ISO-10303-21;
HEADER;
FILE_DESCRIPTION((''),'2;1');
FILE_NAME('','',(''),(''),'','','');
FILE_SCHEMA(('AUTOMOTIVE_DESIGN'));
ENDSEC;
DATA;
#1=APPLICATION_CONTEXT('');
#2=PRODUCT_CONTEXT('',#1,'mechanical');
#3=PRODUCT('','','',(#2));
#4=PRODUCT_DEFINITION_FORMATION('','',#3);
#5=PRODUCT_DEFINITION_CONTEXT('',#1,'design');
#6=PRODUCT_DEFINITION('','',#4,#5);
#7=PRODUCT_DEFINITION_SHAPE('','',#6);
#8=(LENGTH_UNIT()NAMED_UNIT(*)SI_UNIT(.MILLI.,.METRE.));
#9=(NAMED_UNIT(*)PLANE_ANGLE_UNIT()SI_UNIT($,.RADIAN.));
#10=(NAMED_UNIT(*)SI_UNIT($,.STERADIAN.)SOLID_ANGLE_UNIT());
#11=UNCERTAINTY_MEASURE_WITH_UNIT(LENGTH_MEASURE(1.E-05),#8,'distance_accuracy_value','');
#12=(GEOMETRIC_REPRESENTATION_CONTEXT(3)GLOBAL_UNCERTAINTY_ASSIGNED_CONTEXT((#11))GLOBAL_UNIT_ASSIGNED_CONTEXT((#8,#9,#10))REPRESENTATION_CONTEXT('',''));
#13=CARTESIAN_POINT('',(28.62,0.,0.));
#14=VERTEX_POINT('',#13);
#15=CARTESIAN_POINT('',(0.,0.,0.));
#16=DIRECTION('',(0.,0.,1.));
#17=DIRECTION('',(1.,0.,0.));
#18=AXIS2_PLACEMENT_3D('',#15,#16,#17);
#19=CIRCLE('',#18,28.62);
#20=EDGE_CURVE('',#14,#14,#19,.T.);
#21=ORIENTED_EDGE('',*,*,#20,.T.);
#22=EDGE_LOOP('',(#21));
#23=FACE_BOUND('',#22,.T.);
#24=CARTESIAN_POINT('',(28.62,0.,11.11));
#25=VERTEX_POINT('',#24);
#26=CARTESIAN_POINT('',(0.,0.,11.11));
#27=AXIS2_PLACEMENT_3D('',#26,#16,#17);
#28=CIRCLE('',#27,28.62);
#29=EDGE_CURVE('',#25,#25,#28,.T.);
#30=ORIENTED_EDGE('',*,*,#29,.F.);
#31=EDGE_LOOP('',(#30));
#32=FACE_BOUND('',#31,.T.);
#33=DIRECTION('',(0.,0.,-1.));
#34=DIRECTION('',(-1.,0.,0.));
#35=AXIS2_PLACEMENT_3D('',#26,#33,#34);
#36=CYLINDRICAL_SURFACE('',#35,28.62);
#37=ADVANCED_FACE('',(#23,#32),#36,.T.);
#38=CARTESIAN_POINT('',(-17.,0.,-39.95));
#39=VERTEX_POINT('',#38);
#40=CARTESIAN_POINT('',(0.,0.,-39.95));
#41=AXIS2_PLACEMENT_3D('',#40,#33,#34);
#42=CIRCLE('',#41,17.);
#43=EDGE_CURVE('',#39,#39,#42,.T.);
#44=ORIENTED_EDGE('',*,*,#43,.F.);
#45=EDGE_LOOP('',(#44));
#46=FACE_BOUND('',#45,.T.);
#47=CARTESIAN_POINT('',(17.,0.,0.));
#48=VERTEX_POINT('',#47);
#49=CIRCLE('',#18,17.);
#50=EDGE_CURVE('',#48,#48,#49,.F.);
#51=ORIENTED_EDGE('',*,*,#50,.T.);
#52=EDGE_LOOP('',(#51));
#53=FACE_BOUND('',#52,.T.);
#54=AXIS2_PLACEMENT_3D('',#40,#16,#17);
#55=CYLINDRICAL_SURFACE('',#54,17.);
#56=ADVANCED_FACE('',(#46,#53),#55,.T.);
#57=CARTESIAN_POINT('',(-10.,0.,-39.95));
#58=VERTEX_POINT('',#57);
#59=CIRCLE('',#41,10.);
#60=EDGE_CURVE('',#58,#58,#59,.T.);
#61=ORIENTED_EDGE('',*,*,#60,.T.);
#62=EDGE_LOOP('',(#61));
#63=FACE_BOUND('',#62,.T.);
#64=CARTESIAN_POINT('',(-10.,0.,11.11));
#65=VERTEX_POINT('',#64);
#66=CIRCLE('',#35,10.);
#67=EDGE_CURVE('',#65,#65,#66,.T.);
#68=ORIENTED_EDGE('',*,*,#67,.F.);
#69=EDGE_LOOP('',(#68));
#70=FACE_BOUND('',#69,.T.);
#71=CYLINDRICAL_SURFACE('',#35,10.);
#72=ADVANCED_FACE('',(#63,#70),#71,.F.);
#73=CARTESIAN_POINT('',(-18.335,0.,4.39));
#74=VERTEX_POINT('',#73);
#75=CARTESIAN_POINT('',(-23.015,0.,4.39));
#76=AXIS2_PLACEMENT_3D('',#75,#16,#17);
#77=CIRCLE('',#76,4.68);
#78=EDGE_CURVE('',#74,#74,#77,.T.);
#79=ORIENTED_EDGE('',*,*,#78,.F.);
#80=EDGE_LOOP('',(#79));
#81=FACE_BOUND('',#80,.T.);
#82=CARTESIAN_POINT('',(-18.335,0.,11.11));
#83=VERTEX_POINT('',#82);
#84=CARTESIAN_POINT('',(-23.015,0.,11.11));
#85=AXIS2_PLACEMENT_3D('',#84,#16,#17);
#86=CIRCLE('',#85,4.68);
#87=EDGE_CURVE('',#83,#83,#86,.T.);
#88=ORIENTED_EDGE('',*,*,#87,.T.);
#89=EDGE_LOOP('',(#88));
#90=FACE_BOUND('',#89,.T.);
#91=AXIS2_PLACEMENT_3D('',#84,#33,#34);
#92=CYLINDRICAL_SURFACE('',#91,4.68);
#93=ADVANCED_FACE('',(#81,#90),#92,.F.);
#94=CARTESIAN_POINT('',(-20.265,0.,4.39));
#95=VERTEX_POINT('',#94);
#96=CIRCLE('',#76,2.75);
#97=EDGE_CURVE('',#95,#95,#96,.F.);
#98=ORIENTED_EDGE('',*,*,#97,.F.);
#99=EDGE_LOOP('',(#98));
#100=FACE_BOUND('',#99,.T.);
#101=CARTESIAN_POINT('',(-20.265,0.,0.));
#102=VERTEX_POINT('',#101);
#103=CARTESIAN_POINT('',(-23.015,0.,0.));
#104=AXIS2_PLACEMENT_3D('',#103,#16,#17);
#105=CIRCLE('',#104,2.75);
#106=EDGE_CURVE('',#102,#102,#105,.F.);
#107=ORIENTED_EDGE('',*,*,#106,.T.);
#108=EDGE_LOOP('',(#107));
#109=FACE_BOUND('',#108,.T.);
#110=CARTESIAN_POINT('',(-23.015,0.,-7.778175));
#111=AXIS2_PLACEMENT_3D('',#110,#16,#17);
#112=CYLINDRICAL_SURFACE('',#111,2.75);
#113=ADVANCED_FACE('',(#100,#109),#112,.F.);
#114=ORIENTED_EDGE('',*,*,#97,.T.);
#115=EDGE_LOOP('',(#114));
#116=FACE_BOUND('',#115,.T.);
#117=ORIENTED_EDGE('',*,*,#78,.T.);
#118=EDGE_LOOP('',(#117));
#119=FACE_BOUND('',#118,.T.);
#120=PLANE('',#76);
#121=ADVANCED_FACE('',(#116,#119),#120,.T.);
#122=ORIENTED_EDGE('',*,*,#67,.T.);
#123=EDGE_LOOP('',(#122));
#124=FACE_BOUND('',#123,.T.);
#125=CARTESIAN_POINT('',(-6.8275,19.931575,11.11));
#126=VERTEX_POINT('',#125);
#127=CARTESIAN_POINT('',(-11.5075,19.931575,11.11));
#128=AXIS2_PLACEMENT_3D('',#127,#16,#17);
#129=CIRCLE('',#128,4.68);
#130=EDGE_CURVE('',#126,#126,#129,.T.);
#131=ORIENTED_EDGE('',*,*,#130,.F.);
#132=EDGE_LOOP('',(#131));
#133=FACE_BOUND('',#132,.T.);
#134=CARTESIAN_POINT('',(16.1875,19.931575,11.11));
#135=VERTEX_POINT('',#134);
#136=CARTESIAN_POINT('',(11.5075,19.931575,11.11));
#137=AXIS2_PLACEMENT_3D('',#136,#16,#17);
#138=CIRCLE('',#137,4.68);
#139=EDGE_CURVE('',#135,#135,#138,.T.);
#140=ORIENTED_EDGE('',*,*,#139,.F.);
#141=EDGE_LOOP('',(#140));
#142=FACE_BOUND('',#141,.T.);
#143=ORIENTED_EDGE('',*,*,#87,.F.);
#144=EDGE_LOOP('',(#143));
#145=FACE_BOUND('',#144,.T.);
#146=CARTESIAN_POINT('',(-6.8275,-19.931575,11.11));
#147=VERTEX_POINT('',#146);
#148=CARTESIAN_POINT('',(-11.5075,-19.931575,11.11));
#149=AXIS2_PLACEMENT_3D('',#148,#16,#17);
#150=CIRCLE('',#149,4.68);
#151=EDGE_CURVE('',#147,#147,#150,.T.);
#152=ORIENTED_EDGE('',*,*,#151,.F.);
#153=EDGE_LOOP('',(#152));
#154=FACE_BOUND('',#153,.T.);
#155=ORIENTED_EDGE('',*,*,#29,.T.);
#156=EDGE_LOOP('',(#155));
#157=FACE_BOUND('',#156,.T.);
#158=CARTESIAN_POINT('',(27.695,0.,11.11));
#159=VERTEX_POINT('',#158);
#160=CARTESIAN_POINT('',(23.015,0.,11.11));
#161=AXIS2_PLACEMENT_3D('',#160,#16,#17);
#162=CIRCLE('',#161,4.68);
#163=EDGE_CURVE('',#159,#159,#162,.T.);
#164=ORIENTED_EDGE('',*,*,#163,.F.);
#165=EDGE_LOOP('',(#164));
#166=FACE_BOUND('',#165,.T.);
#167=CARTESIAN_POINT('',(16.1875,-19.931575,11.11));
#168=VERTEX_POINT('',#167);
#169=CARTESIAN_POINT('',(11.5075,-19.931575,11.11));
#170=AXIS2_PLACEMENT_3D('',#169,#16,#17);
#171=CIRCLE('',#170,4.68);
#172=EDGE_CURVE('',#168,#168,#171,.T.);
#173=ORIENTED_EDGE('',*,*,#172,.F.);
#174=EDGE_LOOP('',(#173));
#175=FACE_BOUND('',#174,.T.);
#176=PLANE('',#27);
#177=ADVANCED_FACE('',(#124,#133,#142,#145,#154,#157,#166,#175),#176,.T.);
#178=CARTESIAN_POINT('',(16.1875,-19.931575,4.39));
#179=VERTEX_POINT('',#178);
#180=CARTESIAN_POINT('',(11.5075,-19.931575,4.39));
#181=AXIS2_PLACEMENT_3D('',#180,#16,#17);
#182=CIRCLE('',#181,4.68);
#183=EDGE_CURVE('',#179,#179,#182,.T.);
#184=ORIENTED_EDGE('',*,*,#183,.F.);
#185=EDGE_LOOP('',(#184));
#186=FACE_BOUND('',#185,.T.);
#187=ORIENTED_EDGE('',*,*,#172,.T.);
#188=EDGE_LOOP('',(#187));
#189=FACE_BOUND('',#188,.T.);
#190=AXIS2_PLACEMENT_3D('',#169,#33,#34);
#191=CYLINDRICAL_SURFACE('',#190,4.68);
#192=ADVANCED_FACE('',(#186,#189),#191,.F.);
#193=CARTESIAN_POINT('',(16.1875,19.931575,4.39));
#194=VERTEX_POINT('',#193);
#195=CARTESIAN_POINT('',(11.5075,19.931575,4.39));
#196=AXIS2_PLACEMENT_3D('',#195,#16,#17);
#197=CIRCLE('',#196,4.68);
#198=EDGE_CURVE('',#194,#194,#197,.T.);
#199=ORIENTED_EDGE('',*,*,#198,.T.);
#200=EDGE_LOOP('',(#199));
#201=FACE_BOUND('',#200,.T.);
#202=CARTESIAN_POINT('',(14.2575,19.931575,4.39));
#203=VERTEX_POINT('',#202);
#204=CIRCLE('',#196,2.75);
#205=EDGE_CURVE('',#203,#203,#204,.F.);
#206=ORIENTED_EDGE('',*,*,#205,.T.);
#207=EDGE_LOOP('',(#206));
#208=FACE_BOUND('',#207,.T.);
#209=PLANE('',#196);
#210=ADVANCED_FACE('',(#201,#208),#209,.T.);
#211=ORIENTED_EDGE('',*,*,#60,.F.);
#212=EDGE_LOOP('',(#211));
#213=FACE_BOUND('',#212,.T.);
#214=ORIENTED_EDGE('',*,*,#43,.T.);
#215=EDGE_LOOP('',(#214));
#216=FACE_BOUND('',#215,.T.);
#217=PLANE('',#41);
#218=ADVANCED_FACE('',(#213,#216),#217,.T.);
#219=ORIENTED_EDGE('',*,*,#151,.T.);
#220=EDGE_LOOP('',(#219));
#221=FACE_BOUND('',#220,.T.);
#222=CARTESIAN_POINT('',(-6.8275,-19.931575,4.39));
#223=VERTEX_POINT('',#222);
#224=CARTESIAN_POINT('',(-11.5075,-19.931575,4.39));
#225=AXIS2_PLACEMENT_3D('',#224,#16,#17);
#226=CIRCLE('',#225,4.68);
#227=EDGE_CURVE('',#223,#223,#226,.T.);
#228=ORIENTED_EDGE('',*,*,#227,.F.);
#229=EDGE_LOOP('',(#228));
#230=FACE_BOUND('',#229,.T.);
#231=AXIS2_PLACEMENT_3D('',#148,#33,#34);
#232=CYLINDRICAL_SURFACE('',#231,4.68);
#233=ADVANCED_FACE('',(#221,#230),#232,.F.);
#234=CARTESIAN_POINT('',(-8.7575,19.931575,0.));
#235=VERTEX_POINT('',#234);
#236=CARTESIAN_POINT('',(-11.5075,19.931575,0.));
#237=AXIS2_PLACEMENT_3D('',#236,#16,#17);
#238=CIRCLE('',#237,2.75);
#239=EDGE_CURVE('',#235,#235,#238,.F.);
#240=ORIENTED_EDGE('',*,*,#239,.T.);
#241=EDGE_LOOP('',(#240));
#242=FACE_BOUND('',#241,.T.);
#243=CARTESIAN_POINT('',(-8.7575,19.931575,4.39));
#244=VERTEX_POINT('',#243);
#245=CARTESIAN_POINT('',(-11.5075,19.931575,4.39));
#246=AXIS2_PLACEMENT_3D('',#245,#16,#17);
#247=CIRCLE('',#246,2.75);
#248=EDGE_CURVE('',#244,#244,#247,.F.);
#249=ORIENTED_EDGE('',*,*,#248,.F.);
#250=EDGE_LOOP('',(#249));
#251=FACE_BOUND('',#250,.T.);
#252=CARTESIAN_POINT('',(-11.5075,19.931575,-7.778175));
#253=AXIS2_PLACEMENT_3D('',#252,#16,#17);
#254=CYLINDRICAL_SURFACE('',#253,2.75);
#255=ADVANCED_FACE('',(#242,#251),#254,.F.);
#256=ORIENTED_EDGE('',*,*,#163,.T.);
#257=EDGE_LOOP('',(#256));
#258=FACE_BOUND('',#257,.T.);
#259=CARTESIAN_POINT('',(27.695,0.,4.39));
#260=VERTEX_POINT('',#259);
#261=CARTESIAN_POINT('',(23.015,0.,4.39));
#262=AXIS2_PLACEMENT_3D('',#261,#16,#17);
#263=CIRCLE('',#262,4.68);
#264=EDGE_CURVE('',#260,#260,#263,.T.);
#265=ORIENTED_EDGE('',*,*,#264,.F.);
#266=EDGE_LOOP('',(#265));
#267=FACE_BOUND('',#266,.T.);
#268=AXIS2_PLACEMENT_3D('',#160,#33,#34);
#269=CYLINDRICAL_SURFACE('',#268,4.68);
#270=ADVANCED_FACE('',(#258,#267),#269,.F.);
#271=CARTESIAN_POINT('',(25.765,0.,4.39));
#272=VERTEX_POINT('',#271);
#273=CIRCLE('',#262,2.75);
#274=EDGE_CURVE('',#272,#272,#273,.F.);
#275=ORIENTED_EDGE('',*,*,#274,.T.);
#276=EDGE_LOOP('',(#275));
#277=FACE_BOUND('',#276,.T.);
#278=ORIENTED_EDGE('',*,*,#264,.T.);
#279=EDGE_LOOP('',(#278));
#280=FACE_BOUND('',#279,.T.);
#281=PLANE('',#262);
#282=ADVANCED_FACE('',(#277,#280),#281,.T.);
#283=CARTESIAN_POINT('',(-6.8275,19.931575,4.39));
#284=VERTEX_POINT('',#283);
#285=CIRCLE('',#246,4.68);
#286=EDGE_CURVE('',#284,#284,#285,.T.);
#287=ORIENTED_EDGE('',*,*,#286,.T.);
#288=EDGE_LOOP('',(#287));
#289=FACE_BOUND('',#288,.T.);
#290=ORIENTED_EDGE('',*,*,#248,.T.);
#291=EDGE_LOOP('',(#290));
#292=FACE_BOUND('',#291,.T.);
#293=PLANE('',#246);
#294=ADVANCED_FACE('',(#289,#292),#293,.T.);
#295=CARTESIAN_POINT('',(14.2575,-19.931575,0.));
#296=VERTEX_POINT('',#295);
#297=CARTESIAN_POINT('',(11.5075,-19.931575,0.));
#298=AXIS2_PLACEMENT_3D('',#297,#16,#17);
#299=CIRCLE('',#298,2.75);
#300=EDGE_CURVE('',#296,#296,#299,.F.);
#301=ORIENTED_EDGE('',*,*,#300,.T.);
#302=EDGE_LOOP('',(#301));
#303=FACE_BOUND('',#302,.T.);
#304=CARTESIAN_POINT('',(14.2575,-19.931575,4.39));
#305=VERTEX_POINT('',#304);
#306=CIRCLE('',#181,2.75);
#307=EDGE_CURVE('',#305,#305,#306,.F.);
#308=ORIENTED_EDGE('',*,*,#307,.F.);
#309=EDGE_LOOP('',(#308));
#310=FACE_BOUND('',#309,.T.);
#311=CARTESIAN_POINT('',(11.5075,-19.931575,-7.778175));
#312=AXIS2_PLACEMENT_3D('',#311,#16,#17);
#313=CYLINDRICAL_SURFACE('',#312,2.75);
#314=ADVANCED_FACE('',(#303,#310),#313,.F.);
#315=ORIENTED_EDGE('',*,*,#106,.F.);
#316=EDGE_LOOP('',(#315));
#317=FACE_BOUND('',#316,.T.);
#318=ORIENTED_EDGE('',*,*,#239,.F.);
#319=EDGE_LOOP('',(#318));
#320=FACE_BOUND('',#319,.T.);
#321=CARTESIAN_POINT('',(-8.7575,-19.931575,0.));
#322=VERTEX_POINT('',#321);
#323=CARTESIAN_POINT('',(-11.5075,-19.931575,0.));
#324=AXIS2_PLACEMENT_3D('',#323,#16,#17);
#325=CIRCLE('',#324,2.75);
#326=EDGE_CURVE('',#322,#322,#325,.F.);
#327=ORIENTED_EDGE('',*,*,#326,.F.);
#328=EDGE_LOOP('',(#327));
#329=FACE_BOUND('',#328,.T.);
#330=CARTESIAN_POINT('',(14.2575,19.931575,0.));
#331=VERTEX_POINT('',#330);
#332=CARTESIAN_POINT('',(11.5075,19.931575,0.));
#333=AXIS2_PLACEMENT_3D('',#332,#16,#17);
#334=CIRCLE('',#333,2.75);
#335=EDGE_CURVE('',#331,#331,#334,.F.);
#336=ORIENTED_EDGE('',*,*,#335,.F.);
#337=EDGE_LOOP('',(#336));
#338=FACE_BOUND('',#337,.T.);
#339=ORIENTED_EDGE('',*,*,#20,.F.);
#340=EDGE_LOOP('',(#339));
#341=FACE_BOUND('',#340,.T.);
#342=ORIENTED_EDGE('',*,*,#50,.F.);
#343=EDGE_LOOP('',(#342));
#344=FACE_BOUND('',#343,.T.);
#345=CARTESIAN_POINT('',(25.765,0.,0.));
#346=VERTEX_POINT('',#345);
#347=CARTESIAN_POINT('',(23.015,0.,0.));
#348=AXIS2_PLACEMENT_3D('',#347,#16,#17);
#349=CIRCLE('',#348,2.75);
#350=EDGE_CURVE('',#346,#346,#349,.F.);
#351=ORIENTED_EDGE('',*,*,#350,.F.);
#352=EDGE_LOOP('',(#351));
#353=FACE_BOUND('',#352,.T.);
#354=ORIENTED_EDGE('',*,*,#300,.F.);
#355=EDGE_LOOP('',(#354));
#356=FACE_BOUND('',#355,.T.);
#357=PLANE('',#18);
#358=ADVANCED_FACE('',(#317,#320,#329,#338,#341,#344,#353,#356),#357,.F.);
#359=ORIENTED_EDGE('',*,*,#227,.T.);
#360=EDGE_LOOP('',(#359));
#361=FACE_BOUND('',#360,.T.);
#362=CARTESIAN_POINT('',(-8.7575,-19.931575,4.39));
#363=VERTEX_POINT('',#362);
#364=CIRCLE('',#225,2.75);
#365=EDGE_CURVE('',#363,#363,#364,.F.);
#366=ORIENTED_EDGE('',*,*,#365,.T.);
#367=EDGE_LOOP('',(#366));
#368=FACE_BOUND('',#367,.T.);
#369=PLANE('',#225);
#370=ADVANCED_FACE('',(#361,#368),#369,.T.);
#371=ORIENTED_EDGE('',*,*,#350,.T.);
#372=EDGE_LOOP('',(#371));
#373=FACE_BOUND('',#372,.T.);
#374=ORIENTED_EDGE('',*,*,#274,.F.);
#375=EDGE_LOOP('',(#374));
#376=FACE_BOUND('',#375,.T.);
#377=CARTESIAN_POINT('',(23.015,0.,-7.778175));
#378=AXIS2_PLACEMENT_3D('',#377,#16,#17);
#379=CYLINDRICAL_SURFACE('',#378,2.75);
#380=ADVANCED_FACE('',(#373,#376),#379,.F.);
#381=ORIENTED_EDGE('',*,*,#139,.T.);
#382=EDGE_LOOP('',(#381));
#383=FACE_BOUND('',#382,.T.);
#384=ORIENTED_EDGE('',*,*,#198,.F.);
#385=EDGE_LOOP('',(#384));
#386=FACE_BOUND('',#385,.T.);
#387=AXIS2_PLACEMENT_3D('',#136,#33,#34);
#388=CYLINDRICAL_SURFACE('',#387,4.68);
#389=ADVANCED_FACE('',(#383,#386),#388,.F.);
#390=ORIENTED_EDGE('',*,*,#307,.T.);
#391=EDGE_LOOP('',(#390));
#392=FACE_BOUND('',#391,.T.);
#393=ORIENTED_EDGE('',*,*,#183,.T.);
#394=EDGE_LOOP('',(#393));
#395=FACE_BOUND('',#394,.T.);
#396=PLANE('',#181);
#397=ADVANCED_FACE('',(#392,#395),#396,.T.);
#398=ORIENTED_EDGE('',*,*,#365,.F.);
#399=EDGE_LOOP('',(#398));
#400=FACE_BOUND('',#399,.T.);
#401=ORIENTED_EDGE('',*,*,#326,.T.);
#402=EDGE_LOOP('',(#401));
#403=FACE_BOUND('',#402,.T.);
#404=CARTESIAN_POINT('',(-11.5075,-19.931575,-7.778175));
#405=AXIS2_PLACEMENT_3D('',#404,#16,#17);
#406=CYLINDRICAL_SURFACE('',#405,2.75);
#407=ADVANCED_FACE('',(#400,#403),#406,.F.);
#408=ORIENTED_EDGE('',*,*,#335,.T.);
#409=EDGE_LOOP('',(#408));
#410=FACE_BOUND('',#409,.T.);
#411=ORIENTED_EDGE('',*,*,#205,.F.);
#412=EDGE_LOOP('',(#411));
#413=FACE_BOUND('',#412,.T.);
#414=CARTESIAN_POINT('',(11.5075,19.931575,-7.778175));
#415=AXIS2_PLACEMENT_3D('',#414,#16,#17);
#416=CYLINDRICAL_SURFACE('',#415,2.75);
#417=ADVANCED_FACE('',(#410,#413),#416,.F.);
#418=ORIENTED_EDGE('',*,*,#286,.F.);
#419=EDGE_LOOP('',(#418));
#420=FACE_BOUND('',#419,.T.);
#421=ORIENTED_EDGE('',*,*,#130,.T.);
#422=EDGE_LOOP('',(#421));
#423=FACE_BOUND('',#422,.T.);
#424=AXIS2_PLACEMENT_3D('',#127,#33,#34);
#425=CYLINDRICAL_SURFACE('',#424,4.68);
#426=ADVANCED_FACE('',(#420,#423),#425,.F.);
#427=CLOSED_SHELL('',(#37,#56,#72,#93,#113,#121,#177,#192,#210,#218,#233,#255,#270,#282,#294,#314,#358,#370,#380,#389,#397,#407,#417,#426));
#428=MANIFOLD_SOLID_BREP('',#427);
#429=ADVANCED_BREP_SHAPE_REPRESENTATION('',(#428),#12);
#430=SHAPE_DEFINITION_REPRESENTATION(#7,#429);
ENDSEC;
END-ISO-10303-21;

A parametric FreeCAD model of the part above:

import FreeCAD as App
import Part
import Sketcher
from FreeCAD import Vector
Q = App.Units.Quantity

doc = App.newDocument("Part")
body = doc.addObject("PartDesign::Body", "Body")

# Sketch on XY plane
sketch1 = body.newObject("Sketcher::SketchObject", "Sketch")
sketch1.AttachmentSupport = (doc.getObject("XY_Plane"), [""])
sketch1.MapMode = "FlatFace"
sketch1.addGeometry(Part.Circle(Vector(0, 0, 0), Vector(0, 0, 1), 29), False)
sketch1.addConstraint(Sketcher.Constraint("Coincident", 0, 3, -1, 1))
sketch1.addConstraint(Sketcher.Constraint("Diameter", 0, Q("57.24 mm")))
pad1 = body.newObject("PartDesign::Pad", "Pad")
pad1.Profile = sketch1
pad1.Length = 11.11

# Sketch on XY plane
sketch2 = body.newObject("Sketcher::SketchObject", "Sketch001")
sketch2.AttachmentSupport = (doc.getObject("XY_Plane"), [""])
sketch2.MapMode = "FlatFace"
sketch2.addGeometry(Part.Circle(Vector(0, 0, 0), Vector(0, 0, 1), 17), False)
sketch2.addConstraint(Sketcher.Constraint("Coincident", 0, 3, -1, 1))
sketch2.addConstraint(Sketcher.Constraint("Diameter", 0, Q("34 mm")))
pad2 = body.newObject("PartDesign::Pad", "Pad001")
pad2.Profile = sketch2
pad2.Length = 39.95
pad2.Reversed = True

# Sketch on XY plane
sketch3 = body.newObject("Sketcher::SketchObject", "Sketch002")
sketch3.AttachmentSupport = (doc.getObject("XY_Plane"), [""])
sketch3.MapMode = "FlatFace"
sketch3.AttachmentOffset = App.Placement(Vector(0, 0, -39.95), App.Rotation())
sketch3.addGeometry(Part.Circle(Vector(0, 0, 0), Vector(0, 0, 1), 10), False)
sketch3.addConstraint(Sketcher.Constraint("Coincident", 0, 3, -1, 1))
sketch3.addConstraint(Sketcher.Constraint("Diameter", 0, Q("20 mm")))
pocket1 = body.newObject("PartDesign::Pocket", "Pocket")
pocket1.Profile = sketch3
pocket1.Type = "ThroughAll"
pocket1.Reversed = True

# Sketch on XY plane
sketch4 = body.newObject("Sketcher::SketchObject", "Sketch003")
sketch4.AttachmentSupport = (doc.getObject("XY_Plane"), [""])
sketch4.MapMode = "FlatFace"
sketch4.AttachmentOffset = App.Placement(Vector(0, 0, 11.11), App.Rotation())
sketch4.addGeometry(Part.Circle(Vector(23, 0, 0), Vector(0, 0, 1), 2.8), False)
sketch4.addGeometry(Part.Circle(Vector(11.5, -19.9, 0), Vector(0, 0, 1), 2.8), False)
sketch4.addGeometry(Part.Circle(Vector(-11.5, -19.9, 0), Vector(0, 0, 1), 2.8), False)
sketch4.addGeometry(Part.Circle(Vector(-23, 0, 0), Vector(0, 0, 1), 2.8), False)
sketch4.addGeometry(Part.Circle(Vector(-11.5, 19.9, 0), Vector(0, 0, 1), 2.8), False)
sketch4.addGeometry(Part.Circle(Vector(11.5, 19.9, 0), Vector(0, 0, 1), 2.8), False)
sketch4.addConstraint(Sketcher.Constraint("Equal", 0, 1))
sketch4.addConstraint(Sketcher.Constraint("Equal", 1, 2))
sketch4.addConstraint(Sketcher.Constraint("Equal", 2, 3))
sketch4.addConstraint(Sketcher.Constraint("Equal", 3, 4))
sketch4.addConstraint(Sketcher.Constraint("Equal", 4, 5))
sketch4.addConstraint(Sketcher.Constraint("Symmetric", 0, 3, 3, 3, -1, 1))
sketch4.addConstraint(Sketcher.Constraint("Symmetric", 1, 3, 4, 3, -1, 1))
sketch4.addConstraint(Sketcher.Constraint("Symmetric", 2, 3, 5, 3, -1, 1))
sketch4.addConstraint(Sketcher.Constraint("Symmetric", 1, 3, 2, 3, -2))
sketch4.addConstraint(Sketcher.Constraint("PointOnObject", 0, 3, -1))
sketch4.addConstraint(Sketcher.Constraint("Diameter", 0, Q("5.5 mm")))
sketch4.addConstraint(Sketcher.Constraint("DistanceX", 3, 3, 0, 3, Q("46.03 mm")))
sketch4.addConstraint(Sketcher.Constraint("DistanceX", 2, 3, 1, 3, Q("23.015 mm")))
sketch4.addConstraint(Sketcher.Constraint("DistanceY", 2, 3, 4, 3, Q("39.863149 mm")))
pocket2 = body.newObject("PartDesign::Pocket", "Pocket001")
pocket2.Profile = sketch4
pocket2.Length = 11.11

# Sketch on XY plane
sketch5 = body.newObject("Sketcher::SketchObject", "Sketch004")
sketch5.AttachmentSupport = (doc.getObject("XY_Plane"), [""])
sketch5.MapMode = "FlatFace"
sketch5.AttachmentOffset = App.Placement(Vector(0, 0, 4.39), App.Rotation())
sketch5.addGeometry(Part.Circle(Vector(23, 0, 0), Vector(0, 0, 1), 4.7), False)
sketch5.addGeometry(Part.Circle(Vector(11.5, -19.9, 0), Vector(0, 0, 1), 4.7), False)
sketch5.addGeometry(Part.Circle(Vector(-11.5, -19.9, 0), Vector(0, 0, 1), 4.7), False)
sketch5.addGeometry(Part.Circle(Vector(-23, 0, 0), Vector(0, 0, 1), 4.7), False)
sketch5.addGeometry(Part.Circle(Vector(-11.5, 19.9, 0), Vector(0, 0, 1), 4.7), False)
sketch5.addGeometry(Part.Circle(Vector(11.5, 19.9, 0), Vector(0, 0, 1), 4.7), False)
sketch5.addConstraint(Sketcher.Constraint("Equal", 0, 1))
sketch5.addConstraint(Sketcher.Constraint("Equal", 1, 2))
sketch5.addConstraint(Sketcher.Constraint("Equal", 2, 3))
sketch5.addConstraint(Sketcher.Constraint("Equal", 3, 4))
sketch5.addConstraint(Sketcher.Constraint("Equal", 4, 5))
sketch5.addConstraint(Sketcher.Constraint("Symmetric", 0, 3, 3, 3, -1, 1))
sketch5.addConstraint(Sketcher.Constraint("Symmetric", 1, 3, 4, 3, -1, 1))
sketch5.addConstraint(Sketcher.Constraint("Symmetric", 2, 3, 5, 3, -1, 1))
sketch5.addConstraint(Sketcher.Constraint("Symmetric", 1, 3, 2, 3, -2))
sketch5.addConstraint(Sketcher.Constraint("PointOnObject", 0, 3, -1))
sketch5.addConstraint(Sketcher.Constraint("Diameter", 0, Q("9.36 mm")))
sketch5.addConstraint(Sketcher.Constraint("DistanceX", 3, 3, 0, 3, Q("46.03 mm")))
sketch5.addConstraint(Sketcher.Constraint("DistanceX", 2, 3, 1, 3, Q("23.015 mm")))
sketch5.addConstraint(Sketcher.Constraint("DistanceY", 2, 3, 4, 3, Q("39.863149 mm")))
pocket3 = body.newObject("PartDesign::Pocket", "Pocket002")
pocket3.Profile = sketch5
pocket3.Type = "ThroughAll"
pocket3.Reversed = True

doc.recompute()
